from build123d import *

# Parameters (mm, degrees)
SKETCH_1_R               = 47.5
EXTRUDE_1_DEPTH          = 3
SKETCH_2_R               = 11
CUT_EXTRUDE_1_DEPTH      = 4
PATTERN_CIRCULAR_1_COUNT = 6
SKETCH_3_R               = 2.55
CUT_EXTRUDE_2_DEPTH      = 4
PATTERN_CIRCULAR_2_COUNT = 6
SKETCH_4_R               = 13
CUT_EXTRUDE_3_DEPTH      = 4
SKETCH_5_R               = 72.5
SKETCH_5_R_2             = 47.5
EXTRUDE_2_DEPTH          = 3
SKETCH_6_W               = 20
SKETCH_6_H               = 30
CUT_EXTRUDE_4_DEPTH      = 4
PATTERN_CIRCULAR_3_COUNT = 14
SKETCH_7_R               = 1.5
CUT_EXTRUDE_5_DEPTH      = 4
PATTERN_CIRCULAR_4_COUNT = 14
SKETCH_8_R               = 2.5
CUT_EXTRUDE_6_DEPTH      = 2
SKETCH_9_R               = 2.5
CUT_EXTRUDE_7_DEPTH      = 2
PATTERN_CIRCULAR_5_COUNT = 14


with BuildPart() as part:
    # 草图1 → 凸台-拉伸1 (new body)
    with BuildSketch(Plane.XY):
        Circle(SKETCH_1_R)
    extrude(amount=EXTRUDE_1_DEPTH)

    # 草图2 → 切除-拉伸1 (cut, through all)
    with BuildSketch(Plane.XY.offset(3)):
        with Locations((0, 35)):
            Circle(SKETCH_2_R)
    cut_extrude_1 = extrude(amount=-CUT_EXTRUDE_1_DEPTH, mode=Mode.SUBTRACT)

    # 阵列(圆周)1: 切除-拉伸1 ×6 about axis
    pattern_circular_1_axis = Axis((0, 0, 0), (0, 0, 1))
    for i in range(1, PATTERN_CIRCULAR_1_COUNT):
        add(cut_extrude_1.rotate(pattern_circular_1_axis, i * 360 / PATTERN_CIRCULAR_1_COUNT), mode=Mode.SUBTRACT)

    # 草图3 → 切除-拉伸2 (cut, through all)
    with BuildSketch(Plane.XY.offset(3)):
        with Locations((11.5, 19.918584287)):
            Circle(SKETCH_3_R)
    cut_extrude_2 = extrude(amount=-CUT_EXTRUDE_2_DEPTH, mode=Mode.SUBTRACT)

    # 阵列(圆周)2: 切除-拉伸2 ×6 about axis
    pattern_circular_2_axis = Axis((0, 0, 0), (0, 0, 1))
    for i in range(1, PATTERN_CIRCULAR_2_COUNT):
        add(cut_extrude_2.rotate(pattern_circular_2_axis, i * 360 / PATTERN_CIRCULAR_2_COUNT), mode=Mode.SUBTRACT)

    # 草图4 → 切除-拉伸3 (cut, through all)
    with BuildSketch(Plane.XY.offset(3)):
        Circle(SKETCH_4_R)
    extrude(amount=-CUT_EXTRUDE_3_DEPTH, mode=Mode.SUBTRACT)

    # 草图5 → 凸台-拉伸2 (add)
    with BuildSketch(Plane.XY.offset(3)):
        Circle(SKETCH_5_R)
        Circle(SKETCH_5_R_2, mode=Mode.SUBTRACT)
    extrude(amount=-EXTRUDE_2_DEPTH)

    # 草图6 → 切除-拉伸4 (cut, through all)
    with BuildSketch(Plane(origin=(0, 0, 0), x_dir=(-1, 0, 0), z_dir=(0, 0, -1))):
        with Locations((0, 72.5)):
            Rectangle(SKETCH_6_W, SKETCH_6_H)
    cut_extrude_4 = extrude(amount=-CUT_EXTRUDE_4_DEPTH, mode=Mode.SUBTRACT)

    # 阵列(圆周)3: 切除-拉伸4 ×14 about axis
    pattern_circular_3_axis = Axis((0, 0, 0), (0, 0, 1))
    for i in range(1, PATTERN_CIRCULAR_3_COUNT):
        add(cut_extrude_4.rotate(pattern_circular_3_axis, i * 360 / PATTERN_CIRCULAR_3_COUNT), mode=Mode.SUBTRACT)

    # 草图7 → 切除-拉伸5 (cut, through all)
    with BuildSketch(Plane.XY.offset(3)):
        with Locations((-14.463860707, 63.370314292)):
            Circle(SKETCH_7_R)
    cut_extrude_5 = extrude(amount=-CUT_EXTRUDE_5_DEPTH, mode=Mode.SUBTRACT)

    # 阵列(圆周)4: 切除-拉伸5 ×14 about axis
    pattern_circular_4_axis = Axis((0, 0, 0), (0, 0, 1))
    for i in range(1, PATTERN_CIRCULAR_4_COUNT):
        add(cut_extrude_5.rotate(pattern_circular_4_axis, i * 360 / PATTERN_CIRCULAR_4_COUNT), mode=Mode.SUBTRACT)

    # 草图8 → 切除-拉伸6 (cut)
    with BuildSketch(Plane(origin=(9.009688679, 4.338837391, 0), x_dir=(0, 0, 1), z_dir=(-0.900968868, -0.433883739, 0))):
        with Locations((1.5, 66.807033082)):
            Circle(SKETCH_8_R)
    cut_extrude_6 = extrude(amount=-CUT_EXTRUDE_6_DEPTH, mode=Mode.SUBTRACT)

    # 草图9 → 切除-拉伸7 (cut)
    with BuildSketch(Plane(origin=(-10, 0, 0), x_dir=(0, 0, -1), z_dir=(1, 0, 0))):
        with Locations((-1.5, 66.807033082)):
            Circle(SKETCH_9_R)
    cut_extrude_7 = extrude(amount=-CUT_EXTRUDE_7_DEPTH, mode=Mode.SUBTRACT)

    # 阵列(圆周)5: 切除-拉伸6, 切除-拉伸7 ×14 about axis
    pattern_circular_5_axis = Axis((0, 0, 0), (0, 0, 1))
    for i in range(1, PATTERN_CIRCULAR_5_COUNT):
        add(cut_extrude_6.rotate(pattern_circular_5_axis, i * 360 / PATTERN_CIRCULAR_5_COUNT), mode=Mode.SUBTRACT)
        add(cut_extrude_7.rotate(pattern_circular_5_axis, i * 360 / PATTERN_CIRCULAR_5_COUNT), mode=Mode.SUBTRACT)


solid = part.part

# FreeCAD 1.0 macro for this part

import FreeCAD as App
import Part
import Sketcher
from FreeCAD import Vector


def add_polygon(sketch, points):
    """Adds a closed chain of lines whose ends are joined by coincident constraints."""
    first, n = sketch.GeometryCount, len(points)
    for a, b in zip(points, points[1:] + points[:1]):
        sketch.addGeometry(Part.LineSegment(App.Vector(*a, 0), App.Vector(*b, 0)), False)
    for i in range(n):
        sketch.addConstraint(Sketcher.Constraint("Coincident", first + i, 2, first + (i + 1) % n, 1))

doc = App.newDocument("Part")
body = doc.addObject("PartDesign::Body", "Body")

# Sketch on XY plane
sketch1 = body.newObject("Sketcher::SketchObject", "Sketch")
sketch1.AttachmentSupport = (doc.getObject("XY_Plane"), [""])
sketch1.MapMode = "FlatFace"
sketch1.addGeometry(Part.Circle(Vector(0, 0, 0), Vector(0, 0, 1), 47.5), False)
sketch1.addConstraint(Sketcher.Constraint("Coincident", 0, 3, -1, 1))
sketch1.addConstraint(Sketcher.Constraint("Diameter", 0, 95.0))
pad1 = body.newObject("PartDesign::Pad", "Pad")
pad1.Profile = sketch1
pad1.Length = 3

# Sketch on XY plane
sketch2 = body.newObject("Sketcher::SketchObject", "Sketch001")
sketch2.AttachmentSupport = (doc.getObject("XY_Plane"), [""])
sketch2.MapMode = "FlatFace"
sketch2.AttachmentOffset = App.Placement(Vector(0, 0, 3), App.Rotation())
sketch2.addGeometry(Part.Circle(Vector(0, 35, 0), Vector(0, 0, 1), 11), False)
sketch2.addConstraint(Sketcher.Constraint("PointOnObject", 0, 3, -2))
sketch2.addConstraint(Sketcher.Constraint("Diameter", 0, 22.0))
sketch2.addConstraint(Sketcher.Constraint("DistanceY", -1, 1, 0, 3, 35.0))
pocket1 = body.newObject("PartDesign::Pocket", "Pocket")
pocket1.Profile = sketch2
pocket1.Type = "ThroughAll"
doc.recompute()

polarpattern = body.newObject("PartDesign::PolarPattern", "PolarPattern")
polarpattern.Originals = [pocket1]
polarpattern.Axis = (doc.getObject("Z_Axis"), [""])
polarpattern.Angle = 360
polarpattern.Occurrences = 6
body.Tip = polarpattern

# Sketch on XY plane
sketch3 = body.newObject("Sketcher::SketchObject", "Sketch002")
sketch3.AttachmentSupport = (doc.getObject("XY_Plane"), [""])
sketch3.MapMode = "FlatFace"
sketch3.AttachmentOffset = App.Placement(Vector(0, 0, 3), App.Rotation())
sketch3.addGeometry(Part.Circle(Vector(11.5, 19.918584, 0), Vector(0, 0, 1), 2.55), False)
sketch3.addConstraint(Sketcher.Constraint("Diameter", 0, 5.1))
sketch3.addConstraint(Sketcher.Constraint("DistanceX", -1, 1, 0, 3, 11.5))
sketch3.addConstraint(Sketcher.Constraint("DistanceY", -1, 1, 0, 3, 19.918584))
pocket2 = body.newObject("PartDesign::Pocket", "Pocket001")
pocket2.Profile = sketch3
pocket2.Type = "ThroughAll"
doc.recompute()

polarpattern2 = body.newObject("PartDesign::PolarPattern", "PolarPattern001")
polarpattern2.Originals = [pocket2]
polarpattern2.Axis = (doc.getObject("Z_Axis"), [""])
polarpattern2.Angle = 360
polarpattern2.Occurrences = 6
body.Tip = polarpattern2

# Sketch on XY plane
sketch4 = body.newObject("Sketcher::SketchObject", "Sketch003")
sketch4.AttachmentSupport = (doc.getObject("XY_Plane"), [""])
sketch4.MapMode = "FlatFace"
sketch4.AttachmentOffset = App.Placement(Vector(0, 0, 3), App.Rotation())
sketch4.addGeometry(Part.Circle(Vector(0, 0, 0), Vector(0, 0, 1), 13), False)
sketch4.addConstraint(Sketcher.Constraint("Coincident", 0, 3, -1, 1))
sketch4.addConstraint(Sketcher.Constraint("Diameter", 0, 26.0))
pocket3 = body.newObject("PartDesign::Pocket", "Pocket002")
pocket3.Profile = sketch4
pocket3.Type = "ThroughAll"

# Sketch on XY plane
sketch5 = body.newObject("Sketcher::SketchObject", "Sketch004")
sketch5.AttachmentSupport = (doc.getObject("XY_Plane"), [""])
sketch5.MapMode = "FlatFace"
sketch5.AttachmentOffset = App.Placement(Vector(0, 0, 3), App.Rotation())
sketch5.addGeometry(Part.Circle(Vector(0, 0, 0), Vector(0, 0, 1), 72.5), False)
sketch5.addGeometry(Part.Circle(Vector(0, 0, 0), Vector(0, 0, 1), 47.5), False)
sketch5.addConstraint(Sketcher.Constraint("Coincident", 0, 3, -1, 1))
sketch5.addConstraint(Sketcher.Constraint("Coincident", 1, 3, -1, 1))
sketch5.addConstraint(Sketcher.Constraint("Diameter", 0, 145.0))
sketch5.addConstraint(Sketcher.Constraint("Diameter", 1, 95.0))
pad2 = body.newObject("PartDesign::Pad", "Pad001")
pad2.Profile = sketch5
pad2.Length = 3
pad2.Reversed = True

# Sketch on XY plane
sketch6 = body.newObject("Sketcher::SketchObject", "Sketch005")
sketch6.AttachmentSupport = (doc.getObject("XY_Plane"), [""])
sketch6.MapMode = "FlatFace"
add_polygon(sketch6, [(10, 87.5), (10, 57.5), (-10, 57.5), (-10, 87.5)])  # lines 0-3
sketch6.addConstraint(Sketcher.Constraint("Vertical", 0))
sketch6.addConstraint(Sketcher.Constraint("Horizontal", 1))
sketch6.addConstraint(Sketcher.Constraint("Vertical", 2))
sketch6.addConstraint(Sketcher.Constraint("Horizontal", 3))
sketch6.addConstraint(Sketcher.Constraint("DistanceX", 1, 2, 1, 1, 20.0))
sketch6.addConstraint(Sketcher.Constraint("DistanceY", 0, 2, 0, 1, 30.0))
sketch6.addConstraint(Sketcher.Constraint("DistanceX", -1, 1, 0, 2, 10.0))
sketch6.addConstraint(Sketcher.Constraint("DistanceY", -1, 1, 0, 2, 57.5))
pocket4 = body.newObject("PartDesign::Pocket", "Pocket003")
pocket4.Profile = sketch6
pocket4.Type = "ThroughAll"
pocket4.Reversed = True
doc.recompute()

polarpattern3 = body.newObject("PartDesign::PolarPattern", "PolarPattern002")
polarpattern3.Originals = [pocket4]
polarpattern3.Axis = (doc.getObject("Z_Axis"), [""])
polarpattern3.Angle = 360
polarpattern3.Occurrences = 14
body.Tip = polarpattern3

# Sketch on XY plane
sketch7 = body.newObject("Sketcher::SketchObject", "Sketch006")
sketch7.AttachmentSupport = (doc.getObject("XY_Plane"), [""])
sketch7.MapMode = "FlatFace"
sketch7.AttachmentOffset = App.Placement(Vector(0, 0, 3), App.Rotation())
sketch7.addGeometry(Part.Circle(Vector(-14.463861, 63.370314, 0), Vector(0, 0, 1), 1.5), False)
sketch7.addConstraint(Sketcher.Constraint("Diameter", 0, 3.0))
sketch7.addConstraint(Sketcher.Constraint("DistanceX", 0, 3, -1, 1, 14.463861))
sketch7.addConstraint(Sketcher.Constraint("DistanceY", -1, 1, 0, 3, 63.370314))
pocket5 = body.newObject("PartDesign::Pocket", "Pocket004")
pocket5.Profile = sketch7
pocket5.Type = "ThroughAll"
doc.recompute()

polarpattern4 = body.newObject("PartDesign::PolarPattern", "PolarPattern003")
polarpattern4.Originals = [pocket5]
polarpattern4.Axis = (doc.getObject("Z_Axis"), [""])
polarpattern4.Angle = 360
polarpattern4.Occurrences = 14
body.Tip = polarpattern4

# Sketch on an angled plane
sketch8 = body.newObject("Sketcher::SketchObject", "Sketch007")
sketch8.Placement = App.Placement(Vector(9.009689, 4.338837, 0), App.Rotation(Vector(0, 0, 1), Vector(-0.433883739, 0.900968868, 0), Vector(-0.900968868, -0.433883739, 0), "ZXY"))
sketch8.addGeometry(Part.Circle(Vector(1.5, 66.807033, 0), Vector(0, 0, 1), 2.5), False)
sketch8.addConstraint(Sketcher.Constraint("Diameter", 0, 5.0))
sketch8.addConstraint(Sketcher.Constraint("DistanceX", -1, 1, 0, 3, 1.5))
sketch8.addConstraint(Sketcher.Constraint("DistanceY", -1, 1, 0, 3, 66.807033))
pocket6 = body.newObject("PartDesign::Pocket", "Pocket005")
pocket6.Profile = sketch8
pocket6.Length = 2

# Sketch on YZ plane
sketch9 = body.newObject("Sketcher::SketchObject", "Sketch008")
sketch9.AttachmentSupport = (doc.getObject("YZ_Plane"), [""])
sketch9.MapMode = "FlatFace"
sketch9.AttachmentOffset = App.Placement(Vector(0, 0, -10), App.Rotation())
sketch9.addGeometry(Part.Circle(Vector(66.807033, 1.5, 0), Vector(0, 0, 1), 2.5), False)
sketch9.addConstraint(Sketcher.Constraint("Diameter", 0, 5.0))
sketch9.addConstraint(Sketcher.Constraint("DistanceY", -1, 1, 0, 3, 1.5))
sketch9.addConstraint(Sketcher.Constraint("DistanceX", -1, 1, 0, 3, 66.807033))
pocket7 = body.newObject("PartDesign::Pocket", "Pocket006")
pocket7.Profile = sketch9
pocket7.Length = 2
doc.recompute()

polarpattern5 = body.newObject("PartDesign::PolarPattern", "PolarPattern004")
polarpattern5.Originals = [pocket6, pocket7]
polarpattern5.Axis = (doc.getObject("Z_Axis"), [""])
polarpattern5.Angle = 360
polarpattern5.Occurrences = 14
body.Tip = polarpattern5

doc.recompute()
